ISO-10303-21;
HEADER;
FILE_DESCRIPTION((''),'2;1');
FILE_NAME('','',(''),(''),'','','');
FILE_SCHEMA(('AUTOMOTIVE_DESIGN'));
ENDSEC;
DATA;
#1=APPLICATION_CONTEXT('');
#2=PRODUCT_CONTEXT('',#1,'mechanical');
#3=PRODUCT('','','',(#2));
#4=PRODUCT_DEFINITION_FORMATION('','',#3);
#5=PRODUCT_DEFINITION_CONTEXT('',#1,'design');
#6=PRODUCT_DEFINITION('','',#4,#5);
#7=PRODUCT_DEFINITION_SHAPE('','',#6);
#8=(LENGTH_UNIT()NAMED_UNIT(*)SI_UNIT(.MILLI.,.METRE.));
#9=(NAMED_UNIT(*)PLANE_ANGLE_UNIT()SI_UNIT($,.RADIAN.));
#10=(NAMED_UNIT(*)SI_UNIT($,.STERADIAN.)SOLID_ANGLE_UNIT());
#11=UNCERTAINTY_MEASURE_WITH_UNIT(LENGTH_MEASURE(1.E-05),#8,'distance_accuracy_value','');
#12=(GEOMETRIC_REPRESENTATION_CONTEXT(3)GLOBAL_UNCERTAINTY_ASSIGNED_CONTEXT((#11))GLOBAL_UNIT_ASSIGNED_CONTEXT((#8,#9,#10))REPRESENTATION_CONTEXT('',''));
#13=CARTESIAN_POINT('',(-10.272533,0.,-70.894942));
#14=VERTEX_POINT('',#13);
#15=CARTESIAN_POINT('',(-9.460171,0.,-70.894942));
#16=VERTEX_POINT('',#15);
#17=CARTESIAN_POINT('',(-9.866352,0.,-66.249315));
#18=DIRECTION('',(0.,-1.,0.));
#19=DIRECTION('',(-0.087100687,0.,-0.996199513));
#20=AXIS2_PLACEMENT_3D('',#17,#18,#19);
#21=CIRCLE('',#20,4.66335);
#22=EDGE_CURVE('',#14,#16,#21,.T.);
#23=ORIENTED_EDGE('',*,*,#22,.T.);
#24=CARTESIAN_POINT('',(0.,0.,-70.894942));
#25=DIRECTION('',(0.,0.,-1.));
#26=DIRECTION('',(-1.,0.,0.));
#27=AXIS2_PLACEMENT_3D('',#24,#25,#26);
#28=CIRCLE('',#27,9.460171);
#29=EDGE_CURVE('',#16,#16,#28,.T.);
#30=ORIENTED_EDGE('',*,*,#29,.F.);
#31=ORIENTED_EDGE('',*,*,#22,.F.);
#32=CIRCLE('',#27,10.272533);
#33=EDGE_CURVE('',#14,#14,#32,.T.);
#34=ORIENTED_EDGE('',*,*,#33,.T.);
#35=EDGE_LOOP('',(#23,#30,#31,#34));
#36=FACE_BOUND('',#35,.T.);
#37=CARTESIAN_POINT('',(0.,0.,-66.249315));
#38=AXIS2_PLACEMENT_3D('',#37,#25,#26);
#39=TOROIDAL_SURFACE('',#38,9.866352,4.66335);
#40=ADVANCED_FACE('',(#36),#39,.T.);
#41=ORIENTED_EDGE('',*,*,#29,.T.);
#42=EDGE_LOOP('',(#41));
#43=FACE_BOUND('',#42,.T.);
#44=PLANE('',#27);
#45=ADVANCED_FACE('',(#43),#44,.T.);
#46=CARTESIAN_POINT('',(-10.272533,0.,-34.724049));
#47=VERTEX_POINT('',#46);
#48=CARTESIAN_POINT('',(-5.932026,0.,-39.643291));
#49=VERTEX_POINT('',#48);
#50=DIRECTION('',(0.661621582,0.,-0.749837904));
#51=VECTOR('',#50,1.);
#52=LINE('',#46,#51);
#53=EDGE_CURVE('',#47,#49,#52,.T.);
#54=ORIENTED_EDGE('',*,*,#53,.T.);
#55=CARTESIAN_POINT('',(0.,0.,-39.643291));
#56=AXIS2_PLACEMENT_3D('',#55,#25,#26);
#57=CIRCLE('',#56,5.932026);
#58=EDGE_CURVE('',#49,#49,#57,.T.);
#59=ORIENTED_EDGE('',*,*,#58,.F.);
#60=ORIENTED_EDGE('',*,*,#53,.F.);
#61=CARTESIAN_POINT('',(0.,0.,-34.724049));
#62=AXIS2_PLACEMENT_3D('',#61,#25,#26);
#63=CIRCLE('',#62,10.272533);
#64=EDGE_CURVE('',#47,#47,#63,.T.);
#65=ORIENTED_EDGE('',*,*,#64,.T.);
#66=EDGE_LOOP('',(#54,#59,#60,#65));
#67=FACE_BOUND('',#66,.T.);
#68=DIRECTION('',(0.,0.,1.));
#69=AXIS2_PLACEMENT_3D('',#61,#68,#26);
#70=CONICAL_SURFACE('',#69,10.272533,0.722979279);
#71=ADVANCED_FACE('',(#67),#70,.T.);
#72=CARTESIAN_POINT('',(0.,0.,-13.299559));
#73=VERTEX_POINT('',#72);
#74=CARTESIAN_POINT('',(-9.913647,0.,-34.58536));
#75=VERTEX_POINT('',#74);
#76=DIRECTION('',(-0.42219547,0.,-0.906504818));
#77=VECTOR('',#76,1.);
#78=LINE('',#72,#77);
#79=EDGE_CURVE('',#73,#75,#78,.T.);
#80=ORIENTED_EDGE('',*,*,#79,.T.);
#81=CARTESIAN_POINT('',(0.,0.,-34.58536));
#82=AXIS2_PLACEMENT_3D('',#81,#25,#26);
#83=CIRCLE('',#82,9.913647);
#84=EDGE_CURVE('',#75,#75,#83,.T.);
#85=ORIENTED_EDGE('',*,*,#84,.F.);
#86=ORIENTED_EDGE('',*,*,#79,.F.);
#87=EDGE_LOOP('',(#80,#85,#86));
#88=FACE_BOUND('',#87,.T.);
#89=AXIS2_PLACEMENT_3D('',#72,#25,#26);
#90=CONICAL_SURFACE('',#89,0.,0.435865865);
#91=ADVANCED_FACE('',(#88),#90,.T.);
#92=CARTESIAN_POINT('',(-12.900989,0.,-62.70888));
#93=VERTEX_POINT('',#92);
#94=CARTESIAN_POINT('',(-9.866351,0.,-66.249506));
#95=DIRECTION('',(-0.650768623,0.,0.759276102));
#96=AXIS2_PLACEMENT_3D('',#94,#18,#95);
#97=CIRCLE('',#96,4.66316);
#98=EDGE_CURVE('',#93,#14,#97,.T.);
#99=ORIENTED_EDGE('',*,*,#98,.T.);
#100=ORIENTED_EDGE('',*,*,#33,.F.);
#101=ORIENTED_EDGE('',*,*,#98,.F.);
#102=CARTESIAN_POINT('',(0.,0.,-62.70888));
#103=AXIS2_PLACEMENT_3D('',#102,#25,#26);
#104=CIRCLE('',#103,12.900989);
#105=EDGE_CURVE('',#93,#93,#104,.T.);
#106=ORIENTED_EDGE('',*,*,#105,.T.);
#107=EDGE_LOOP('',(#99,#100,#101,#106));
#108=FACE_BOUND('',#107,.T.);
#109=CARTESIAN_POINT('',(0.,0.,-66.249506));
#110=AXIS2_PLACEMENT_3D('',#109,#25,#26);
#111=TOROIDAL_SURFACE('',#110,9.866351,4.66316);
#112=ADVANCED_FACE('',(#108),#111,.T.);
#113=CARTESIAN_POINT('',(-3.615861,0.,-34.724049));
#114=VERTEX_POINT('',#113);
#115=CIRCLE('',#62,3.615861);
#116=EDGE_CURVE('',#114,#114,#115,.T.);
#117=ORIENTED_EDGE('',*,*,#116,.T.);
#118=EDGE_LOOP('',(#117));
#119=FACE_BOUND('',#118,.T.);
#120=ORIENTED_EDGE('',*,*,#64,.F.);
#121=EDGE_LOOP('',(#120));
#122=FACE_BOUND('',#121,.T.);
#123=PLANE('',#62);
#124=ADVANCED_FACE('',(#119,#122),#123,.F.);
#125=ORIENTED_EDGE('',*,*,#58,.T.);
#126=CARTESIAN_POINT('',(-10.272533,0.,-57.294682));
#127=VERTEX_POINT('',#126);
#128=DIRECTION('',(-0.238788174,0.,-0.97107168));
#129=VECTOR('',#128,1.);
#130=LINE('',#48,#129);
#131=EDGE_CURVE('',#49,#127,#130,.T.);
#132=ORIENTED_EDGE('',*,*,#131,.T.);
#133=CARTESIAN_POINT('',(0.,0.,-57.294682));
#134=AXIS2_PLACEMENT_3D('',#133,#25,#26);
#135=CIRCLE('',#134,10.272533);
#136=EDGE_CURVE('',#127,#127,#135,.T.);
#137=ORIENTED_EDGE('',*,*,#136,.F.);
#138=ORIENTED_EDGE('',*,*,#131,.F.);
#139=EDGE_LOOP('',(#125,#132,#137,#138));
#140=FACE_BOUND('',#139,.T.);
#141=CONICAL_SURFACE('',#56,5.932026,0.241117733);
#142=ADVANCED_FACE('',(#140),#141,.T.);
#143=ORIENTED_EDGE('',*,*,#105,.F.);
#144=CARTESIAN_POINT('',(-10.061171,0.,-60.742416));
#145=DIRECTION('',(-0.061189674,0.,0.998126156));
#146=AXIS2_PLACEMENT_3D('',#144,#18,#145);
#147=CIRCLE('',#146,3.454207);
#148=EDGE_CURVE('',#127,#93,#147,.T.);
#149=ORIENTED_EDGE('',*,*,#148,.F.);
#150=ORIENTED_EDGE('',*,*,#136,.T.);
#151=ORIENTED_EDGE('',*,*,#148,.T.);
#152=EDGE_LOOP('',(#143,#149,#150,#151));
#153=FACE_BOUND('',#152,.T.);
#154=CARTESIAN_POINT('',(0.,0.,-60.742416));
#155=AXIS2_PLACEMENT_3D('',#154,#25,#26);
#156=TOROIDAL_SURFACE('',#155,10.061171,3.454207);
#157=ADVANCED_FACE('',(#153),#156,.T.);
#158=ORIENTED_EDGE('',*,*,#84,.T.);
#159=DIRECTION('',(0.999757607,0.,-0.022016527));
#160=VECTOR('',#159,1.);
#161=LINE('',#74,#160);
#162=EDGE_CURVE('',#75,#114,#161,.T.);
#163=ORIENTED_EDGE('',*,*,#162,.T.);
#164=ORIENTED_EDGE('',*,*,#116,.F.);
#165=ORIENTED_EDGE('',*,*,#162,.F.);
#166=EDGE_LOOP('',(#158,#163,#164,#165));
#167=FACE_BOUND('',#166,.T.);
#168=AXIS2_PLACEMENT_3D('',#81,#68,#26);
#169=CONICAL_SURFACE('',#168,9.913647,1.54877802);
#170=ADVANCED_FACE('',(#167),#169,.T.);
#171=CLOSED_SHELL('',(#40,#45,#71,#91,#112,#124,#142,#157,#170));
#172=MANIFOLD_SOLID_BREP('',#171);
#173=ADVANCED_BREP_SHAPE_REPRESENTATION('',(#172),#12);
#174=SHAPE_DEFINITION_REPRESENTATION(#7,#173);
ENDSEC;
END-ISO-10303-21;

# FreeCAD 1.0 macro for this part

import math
import FreeCAD as App
import Part
import Sketcher
from FreeCAD import Vector


def add_polygon(sketch, points):
    """Adds a closed chain of lines whose ends are joined by coincident constraints."""
    first, n = sketch.GeometryCount, len(points)
    for a, b in zip(points, points[1:] + points[:1]):
        sketch.addGeometry(Part.LineSegment(App.Vector(*a, 0), App.Vector(*b, 0)), False)
    for i in range(n):
        sketch.addConstraint(Sketcher.Constraint("Coincident", first + i, 2, first + (i + 1) % n, 1))

doc = App.newDocument("Part")
body = doc.addObject("PartDesign::Body", "Body")

# Sketch on XZ plane
sketch1 = doc.addObject("Sketcher::SketchObject", "Sketch")
body.addObject(sketch1)
sketch1.AttachmentSupport = (doc.XZ_Plane, [""])
sketch1.MapMode = "FlatFace"
sketch1.addGeometry(Part.ArcOfCircle(Part.Circle(Vector(-9.9, -66.2, 0), Vector(0, 0, 1), 4.7), math.radians(-95), math.radians(-85)), False)
sketch1.addGeometry(Part.LineSegment(Vector(-9.5, -70.9, 0), Vector(0, -70.9, 0)), False)
sketch1.addGeometry(Part.LineSegment(Vector(0, -70.9, 0), Vector(0, -34.7, 0)), False)
sketch1.addGeometry(Part.LineSegment(Vector(0, -34.7, 0), Vector(-10.3, -34.7, 0)), False)
sketch1.addGeometry(Part.LineSegment(Vector(-10.3, -34.7, 0), Vector(-5.9, -39.6, 0)), False)
sketch1.addGeometry(Part.LineSegment(Vector(-5.9, -39.6, 0), Vector(-10.3, -57.3, 0)), False)
sketch1.addGeometry(Part.ArcOfCircle(Part.Circle(Vector(-10.1, -60.7, 0), Vector(0, 0, 1), 3.5), math.radians(94), math.radians(215)), False)
sketch1.addGeometry(Part.ArcOfCircle(Part.Circle(Vector(-9.9, -66.2, 0), Vector(0, 0, 1), 4.7), math.radians(131), math.radians(265)), False)
sketch1.addConstraint(Sketcher.Constraint("Coincident", 0, 2, 1, 1))
sketch1.addConstraint(Sketcher.Constraint("Coincident", 1, 2, 2, 1))
sketch1.addConstraint(Sketcher.Constraint("Coincident", 2, 2, 3, 1))
sketch1.addConstraint(Sketcher.Constraint("Coincident", 3, 2, 4, 1))
sketch1.addConstraint(Sketcher.Constraint("Coincident", 4, 2, 5, 1))
sketch1.addConstraint(Sketcher.Constraint("Coincident", 5, 2, 6, 1))
sketch1.addConstraint(Sketcher.Constraint("Coincident", 6, 2, 7, 1))
sketch1.addConstraint(Sketcher.Constraint("Coincident", 7, 2, 0, 1))
sketch1.addConstraint(Sketcher.Constraint("Horizontal", 1))
sketch1.addConstraint(Sketcher.Constraint("Vertical", 2))
sketch1.addConstraint(Sketcher.Constraint("Horizontal", 3))
sketch1.addConstraint(Sketcher.Constraint("PointOnObject", 1, 2, -2))
sketch1.addConstraint(Sketcher.Constraint("Horizontal", 1, 2, 7, 2))
sketch1.addConstraint(Sketcher.Constraint("Vertical", 0, 3, 7, 3))
sketch1.addConstraint(Sketcher.Constraint("Vertical", 3, 2, 5, 2))
sketch1.addConstraint(Sketcher.Constraint("Vertical", 5, 2, 7, 2))
sketch1.addConstraint(Sketcher.Constraint("Radius", 0, 4.66335))
sketch1.addConstraint(Sketcher.Constraint("Radius", 7, 4.66316))
sketch1.addConstraint(Sketcher.Constraint("Radius", 6, 3.454207))
sketch1.addConstraint(Sketcher.Constraint("DistanceX", 6, 3, 0, 2, 0.601))
sketch1.addConstraint(Sketcher.Constraint("DistanceX", 1, 1, 1, 2, 9.460171))
sketch1.addConstraint(Sketcher.Constraint("DistanceY", 0, 3, 6, 3, 5.506899))
sketch1.addConstraint(Sketcher.Constraint("DistanceX", 3, 2, 3, 1, 10.272533))
sketch1.addConstraint(Sketcher.Constraint("DistanceY", 2, 1, 2, 2, 36.170893))
sketch1.addConstraint(Sketcher.Constraint("DistanceY", 0, 2, -1, 1, 70.894942))
sketch1.addConstraint(Sketcher.Constraint("DistanceY", 4, 2, -1, 1, 39.643291))
sketch1.addConstraint(Sketcher.Constraint("Distance", 4, 6.560407))
revolution = doc.addObject("PartDesign::Revolution", "Revolution")
body.addObject(revolution)
revolution.Profile = sketch1
revolution.ReferenceAxis = (sketch1, ["V_Axis"])
revolution.Angle = 360

# Sketch on XZ plane
sketch2 = doc.addObject("Sketcher::SketchObject", "Sketch001")
body.addObject(sketch2)
sketch2.AttachmentSupport = (doc.XZ_Plane, [""])
sketch2.MapMode = "FlatFace"
add_polygon(sketch2, [(0, -13.299559), (-9.913647, -34.58536), (0, -34.803677)])  # lines 0-2
sketch2.addConstraint(Sketcher.Constraint("Vertical", 2))
sketch2.addConstraint(Sketcher.Constraint("PointOnObject", 1, 2, -2))
sketch2.addConstraint(Sketcher.Constraint("DistanceY", 0, 2, 2, 2, 21.285801))
sketch2.addConstraint(Sketcher.Constraint("Distance", 0, 23.481178))
sketch2.addConstraint(Sketcher.Constraint("Distance", 1, 9.916051))
sketch2.addConstraint(Sketcher.Constraint("DistanceY", 0, 2, -1, 1, 34.58536))
revolution2 = doc.addObject("PartDesign::Revolution", "Revolution001")
body.addObject(revolution2)
revolution2.Profile = sketch2
revolution2.ReferenceAxis = (sketch2, ["V_Axis"])
revolution2.Angle = 360

doc.recompute()
